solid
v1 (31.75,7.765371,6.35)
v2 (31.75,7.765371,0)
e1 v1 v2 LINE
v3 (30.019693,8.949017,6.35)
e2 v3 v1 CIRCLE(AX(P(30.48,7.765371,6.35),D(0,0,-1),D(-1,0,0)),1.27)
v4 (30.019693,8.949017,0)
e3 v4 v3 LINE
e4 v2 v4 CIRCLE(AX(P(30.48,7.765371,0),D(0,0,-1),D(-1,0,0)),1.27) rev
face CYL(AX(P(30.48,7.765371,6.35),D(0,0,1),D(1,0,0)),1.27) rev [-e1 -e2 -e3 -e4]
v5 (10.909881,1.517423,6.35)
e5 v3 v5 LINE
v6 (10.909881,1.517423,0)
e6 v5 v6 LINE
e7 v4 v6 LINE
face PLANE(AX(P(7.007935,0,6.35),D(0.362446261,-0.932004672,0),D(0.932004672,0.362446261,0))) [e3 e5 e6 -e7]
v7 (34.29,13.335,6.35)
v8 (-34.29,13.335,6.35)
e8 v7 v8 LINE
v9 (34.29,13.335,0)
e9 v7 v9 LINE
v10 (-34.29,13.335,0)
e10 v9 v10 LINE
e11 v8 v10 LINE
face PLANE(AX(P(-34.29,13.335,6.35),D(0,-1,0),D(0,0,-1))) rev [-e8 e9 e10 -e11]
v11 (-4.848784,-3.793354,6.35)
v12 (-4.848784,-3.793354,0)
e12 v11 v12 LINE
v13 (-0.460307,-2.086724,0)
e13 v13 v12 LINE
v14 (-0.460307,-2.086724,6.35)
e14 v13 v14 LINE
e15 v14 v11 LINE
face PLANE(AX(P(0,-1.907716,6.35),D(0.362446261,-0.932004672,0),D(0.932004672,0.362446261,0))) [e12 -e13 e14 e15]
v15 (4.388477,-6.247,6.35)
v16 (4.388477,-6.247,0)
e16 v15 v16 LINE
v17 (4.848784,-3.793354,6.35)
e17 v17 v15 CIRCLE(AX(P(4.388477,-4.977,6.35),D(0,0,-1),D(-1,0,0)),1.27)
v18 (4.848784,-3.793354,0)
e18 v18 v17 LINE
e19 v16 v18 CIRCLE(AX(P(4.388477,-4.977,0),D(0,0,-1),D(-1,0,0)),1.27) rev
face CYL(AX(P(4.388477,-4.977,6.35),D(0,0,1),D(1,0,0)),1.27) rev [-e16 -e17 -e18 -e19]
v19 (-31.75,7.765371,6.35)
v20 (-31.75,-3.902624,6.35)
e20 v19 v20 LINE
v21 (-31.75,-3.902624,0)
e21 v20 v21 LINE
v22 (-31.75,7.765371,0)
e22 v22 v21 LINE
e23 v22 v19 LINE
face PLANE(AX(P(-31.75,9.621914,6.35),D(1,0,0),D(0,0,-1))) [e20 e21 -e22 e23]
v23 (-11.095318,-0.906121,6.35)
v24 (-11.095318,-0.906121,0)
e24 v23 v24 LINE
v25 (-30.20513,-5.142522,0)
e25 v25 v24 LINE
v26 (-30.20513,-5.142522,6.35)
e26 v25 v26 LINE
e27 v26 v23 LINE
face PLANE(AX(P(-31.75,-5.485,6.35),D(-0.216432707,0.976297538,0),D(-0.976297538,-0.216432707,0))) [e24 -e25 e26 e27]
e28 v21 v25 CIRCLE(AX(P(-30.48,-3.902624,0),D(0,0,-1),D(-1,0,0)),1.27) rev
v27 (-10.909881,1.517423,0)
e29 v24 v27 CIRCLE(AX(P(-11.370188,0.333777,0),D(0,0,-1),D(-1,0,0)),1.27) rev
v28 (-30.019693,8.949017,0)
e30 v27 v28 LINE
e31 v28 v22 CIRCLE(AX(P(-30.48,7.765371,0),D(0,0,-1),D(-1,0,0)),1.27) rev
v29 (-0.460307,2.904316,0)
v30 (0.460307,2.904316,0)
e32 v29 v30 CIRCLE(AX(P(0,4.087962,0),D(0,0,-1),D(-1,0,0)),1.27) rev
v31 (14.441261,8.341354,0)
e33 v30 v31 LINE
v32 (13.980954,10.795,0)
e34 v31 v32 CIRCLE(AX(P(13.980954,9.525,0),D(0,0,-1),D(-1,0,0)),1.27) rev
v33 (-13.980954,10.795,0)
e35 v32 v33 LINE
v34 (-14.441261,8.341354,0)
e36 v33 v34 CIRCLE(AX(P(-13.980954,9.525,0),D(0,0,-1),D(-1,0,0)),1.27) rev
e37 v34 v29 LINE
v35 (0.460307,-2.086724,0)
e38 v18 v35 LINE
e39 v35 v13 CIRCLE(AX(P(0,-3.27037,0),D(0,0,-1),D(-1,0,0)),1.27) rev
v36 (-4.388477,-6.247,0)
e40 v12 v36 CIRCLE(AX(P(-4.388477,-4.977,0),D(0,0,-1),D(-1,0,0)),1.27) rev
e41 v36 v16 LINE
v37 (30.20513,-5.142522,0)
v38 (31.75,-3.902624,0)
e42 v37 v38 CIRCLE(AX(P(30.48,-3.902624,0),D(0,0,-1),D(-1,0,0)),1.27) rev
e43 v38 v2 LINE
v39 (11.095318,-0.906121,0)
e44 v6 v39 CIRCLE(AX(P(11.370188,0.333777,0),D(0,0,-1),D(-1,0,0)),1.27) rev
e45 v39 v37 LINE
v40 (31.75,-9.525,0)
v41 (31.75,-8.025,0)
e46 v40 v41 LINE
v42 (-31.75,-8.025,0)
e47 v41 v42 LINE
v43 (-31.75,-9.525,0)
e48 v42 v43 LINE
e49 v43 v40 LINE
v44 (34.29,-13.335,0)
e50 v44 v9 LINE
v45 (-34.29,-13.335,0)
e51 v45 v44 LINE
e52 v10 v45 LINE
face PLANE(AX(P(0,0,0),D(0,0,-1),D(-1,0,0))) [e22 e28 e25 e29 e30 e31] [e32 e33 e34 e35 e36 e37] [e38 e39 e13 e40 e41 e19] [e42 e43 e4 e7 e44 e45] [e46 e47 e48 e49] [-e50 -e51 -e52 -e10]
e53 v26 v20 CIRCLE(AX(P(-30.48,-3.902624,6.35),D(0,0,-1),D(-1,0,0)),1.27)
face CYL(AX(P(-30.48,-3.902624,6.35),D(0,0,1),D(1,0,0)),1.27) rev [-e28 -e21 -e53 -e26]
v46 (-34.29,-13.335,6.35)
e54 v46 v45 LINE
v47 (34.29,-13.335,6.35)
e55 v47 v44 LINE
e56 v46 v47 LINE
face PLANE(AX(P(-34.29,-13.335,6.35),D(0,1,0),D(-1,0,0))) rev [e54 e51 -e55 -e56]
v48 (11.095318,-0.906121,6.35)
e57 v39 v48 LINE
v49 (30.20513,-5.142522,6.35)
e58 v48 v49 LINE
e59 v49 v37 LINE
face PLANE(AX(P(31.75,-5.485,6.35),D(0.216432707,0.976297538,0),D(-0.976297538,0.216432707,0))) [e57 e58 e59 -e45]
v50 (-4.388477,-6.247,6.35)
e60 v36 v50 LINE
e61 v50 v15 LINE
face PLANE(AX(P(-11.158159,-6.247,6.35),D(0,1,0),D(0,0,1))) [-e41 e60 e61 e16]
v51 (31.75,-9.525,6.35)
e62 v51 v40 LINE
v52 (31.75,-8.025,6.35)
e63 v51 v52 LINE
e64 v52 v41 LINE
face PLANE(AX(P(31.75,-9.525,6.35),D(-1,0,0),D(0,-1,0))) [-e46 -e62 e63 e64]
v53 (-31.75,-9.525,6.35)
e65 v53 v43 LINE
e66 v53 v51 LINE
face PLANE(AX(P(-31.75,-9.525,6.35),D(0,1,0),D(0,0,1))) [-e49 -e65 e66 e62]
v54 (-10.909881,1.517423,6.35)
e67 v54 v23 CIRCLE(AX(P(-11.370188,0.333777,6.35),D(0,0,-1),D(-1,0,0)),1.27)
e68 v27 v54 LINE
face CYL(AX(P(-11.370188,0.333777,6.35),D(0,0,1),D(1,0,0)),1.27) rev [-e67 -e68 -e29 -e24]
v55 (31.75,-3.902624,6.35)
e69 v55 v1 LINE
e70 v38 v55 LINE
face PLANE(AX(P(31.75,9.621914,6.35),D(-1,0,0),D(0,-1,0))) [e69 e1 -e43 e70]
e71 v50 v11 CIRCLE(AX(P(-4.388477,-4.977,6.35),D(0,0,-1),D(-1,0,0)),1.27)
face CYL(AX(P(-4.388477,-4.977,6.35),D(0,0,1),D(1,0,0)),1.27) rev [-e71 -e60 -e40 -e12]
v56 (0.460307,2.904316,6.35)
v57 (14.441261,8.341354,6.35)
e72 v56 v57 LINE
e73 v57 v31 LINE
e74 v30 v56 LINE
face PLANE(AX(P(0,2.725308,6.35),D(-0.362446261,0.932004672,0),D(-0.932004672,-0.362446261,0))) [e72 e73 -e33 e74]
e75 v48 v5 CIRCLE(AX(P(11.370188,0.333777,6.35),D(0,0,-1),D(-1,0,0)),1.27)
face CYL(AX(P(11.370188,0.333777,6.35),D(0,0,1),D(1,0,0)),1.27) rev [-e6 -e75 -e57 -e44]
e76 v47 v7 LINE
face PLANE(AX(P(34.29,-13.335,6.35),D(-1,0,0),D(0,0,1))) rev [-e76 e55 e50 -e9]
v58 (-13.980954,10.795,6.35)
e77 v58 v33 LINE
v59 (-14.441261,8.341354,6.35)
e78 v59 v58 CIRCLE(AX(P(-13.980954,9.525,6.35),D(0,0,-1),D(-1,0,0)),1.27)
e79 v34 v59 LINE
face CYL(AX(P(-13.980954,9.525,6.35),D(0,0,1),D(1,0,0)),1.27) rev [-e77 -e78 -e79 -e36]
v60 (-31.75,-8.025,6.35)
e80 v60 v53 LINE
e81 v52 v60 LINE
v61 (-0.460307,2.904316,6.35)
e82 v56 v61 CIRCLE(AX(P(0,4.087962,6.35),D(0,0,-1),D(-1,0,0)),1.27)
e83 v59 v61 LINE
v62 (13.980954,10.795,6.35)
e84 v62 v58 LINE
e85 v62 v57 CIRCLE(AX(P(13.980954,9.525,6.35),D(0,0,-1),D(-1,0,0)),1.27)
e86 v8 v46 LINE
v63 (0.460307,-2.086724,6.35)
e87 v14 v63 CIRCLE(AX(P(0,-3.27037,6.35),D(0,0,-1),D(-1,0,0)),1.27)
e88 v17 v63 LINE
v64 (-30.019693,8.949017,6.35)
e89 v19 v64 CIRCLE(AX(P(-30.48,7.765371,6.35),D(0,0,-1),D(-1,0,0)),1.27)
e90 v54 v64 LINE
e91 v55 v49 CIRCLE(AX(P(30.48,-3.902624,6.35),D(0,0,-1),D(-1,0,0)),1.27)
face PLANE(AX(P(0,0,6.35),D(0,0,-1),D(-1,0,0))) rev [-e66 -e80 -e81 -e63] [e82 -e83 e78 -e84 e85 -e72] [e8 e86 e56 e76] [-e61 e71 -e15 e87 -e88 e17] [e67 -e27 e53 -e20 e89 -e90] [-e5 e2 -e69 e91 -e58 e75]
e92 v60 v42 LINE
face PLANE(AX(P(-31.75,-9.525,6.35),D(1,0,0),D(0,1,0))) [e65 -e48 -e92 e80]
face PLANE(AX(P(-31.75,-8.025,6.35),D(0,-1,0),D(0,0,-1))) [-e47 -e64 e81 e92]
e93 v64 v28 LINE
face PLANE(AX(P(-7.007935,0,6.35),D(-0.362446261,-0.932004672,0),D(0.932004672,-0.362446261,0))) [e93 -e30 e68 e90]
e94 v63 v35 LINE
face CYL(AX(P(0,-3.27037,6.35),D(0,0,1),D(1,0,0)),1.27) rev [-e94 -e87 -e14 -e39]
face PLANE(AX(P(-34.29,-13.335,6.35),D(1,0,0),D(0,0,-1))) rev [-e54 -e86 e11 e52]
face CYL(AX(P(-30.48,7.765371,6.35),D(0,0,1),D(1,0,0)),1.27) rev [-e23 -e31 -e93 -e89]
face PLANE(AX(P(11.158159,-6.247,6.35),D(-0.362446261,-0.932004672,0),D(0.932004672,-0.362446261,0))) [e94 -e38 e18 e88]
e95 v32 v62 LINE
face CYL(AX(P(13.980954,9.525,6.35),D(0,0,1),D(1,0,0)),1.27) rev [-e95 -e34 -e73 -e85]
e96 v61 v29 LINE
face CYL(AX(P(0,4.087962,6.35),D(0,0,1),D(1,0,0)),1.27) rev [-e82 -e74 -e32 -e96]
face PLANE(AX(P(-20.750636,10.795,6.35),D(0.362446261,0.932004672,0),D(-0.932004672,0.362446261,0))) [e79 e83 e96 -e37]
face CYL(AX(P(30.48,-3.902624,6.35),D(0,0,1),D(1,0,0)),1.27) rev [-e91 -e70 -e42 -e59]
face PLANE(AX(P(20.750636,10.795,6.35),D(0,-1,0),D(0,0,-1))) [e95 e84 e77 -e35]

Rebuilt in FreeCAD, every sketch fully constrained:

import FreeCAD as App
import Part
import Sketcher
from FreeCAD import Vector
Q = App.Units.Quantity


def edges_at(feature, points):
    """Names of the edges that pass closest to the given points."""
    edges = feature.Shape.Edges
    near = lambda p: min(range(len(edges)), key=lambda i: edges[i].distToShape(Part.Vertex(*p))[0])
    return sorted({f"Edge{near(p) + 1}" for p in points})

doc = App.newDocument("Part")
params = doc.addObject("Spreadsheet::Sheet", "Params")
for row, (alias, value) in enumerate([
    ("sketch1_width", "2.7 in"),
    ("sketch1_width2", "2.5 in"),
    ("sketch1_height", "1.05 in"),
    ("pad1_length", "0.25 in"),
    ("fillet_radius", "0.05 in"),
], start=1):
    params.set(f"A{row}", alias)
    params.set(f"B{row}", "=" + value)
    params.setAlias(f"B{row}", alias)

body = doc.addObject("PartDesign::Body", "Body")

sketch1 = body.newObject("Sketcher::SketchObject", "Sketch")
sketch1.AttachmentSupport = (doc.getObject("XY_Plane"), [""])
sketch1.MapMode = "FlatFace"
sketch1.addGeometry([
    Part.LineSegment(Vector(-34.3, 13.3, 0), Vector(-34.3, -13.3, 0)),
    Part.LineSegment(Vector(-34.3, -13.3, 0), Vector(34.3, -13.3, 0)),
    Part.LineSegment(Vector(34.3, -13.3, 0), Vector(34.3, 13.3, 0)),
    Part.LineSegment(Vector(34.3, 13.3, 0), Vector(-34.3, 13.3, 0)),
    Part.LineSegment(Vector(31.8, -9.5, 0), Vector(-31.8, -9.5, 0)),
    Part.LineSegment(Vector(-31.8, -9.5, 0), Vector(-31.8, -8, 0)),
    Part.LineSegment(Vector(-31.8, -8, 0), Vector(31.8, -8, 0)),
    Part.LineSegment(Vector(31.8, -8, 0), Vector(31.8, -9.5, 0)),
    Part.LineSegment(Vector(-11.2, -6.2, 0), Vector(0, -1.9, 0)),
    Part.LineSegment(Vector(0, -1.9, 0), Vector(11.2, -6.2, 0)),
    Part.LineSegment(Vector(11.2, -6.2, 0), Vector(-11.2, -6.2, 0)),
    Part.LineSegment(Vector(-31.8, -5.5, 0), Vector(-31.8, 9.6, 0)),
    Part.LineSegment(Vector(-31.8, 9.6, 0), Vector(-7, 0, 0)),
    Part.LineSegment(Vector(-7, 0, 0), Vector(-31.8, -5.5, 0)),
    Part.LineSegment(Vector(31.8, -5.5, 0), Vector(7, 0, 0)),
    Part.LineSegment(Vector(7, 0, 0), Vector(31.8, 9.6, 0)),
    Part.LineSegment(Vector(31.8, 9.6, 0), Vector(31.8, -5.5, 0)),
    Part.LineSegment(Vector(0, 2.7, 0), Vector(-20.8, 10.8, 0)),
    Part.LineSegment(Vector(-20.8, 10.8, 0), Vector(20.8, 10.8, 0)),
    Part.LineSegment(Vector(20.8, 10.8, 0), Vector(0, 2.7, 0)),
], False)
sketch1.addConstraint([
    Sketcher.Constraint("Coincident", 0, 2, 1, 1),
    Sketcher.Constraint("Coincident", 1, 2, 2, 1),
    Sketcher.Constraint("Coincident", 2, 2, 3, 1),
    Sketcher.Constraint("Coincident", 3, 2, 0, 1),
    Sketcher.Constraint("Coincident", 4, 2, 5, 1),
    Sketcher.Constraint("Coincident", 5, 2, 6, 1),
    Sketcher.Constraint("Coincident", 6, 2, 7, 1),
    Sketcher.Constraint("Coincident", 7, 2, 4, 1),
    Sketcher.Constraint("Coincident", 8, 2, 9, 1),
    Sketcher.Constraint("Coincident", 9, 2, 10, 1),
    Sketcher.Constraint("Coincident", 10, 2, 8, 1),
    Sketcher.Constraint("Coincident", 11, 2, 12, 1),
    Sketcher.Constraint("Coincident", 12, 2, 13, 1),
    Sketcher.Constraint("Coincident", 13, 2, 11, 1),
    Sketcher.Constraint("Coincident", 14, 2, 15, 1),
    Sketcher.Constraint("Coincident", 15, 2, 16, 1),
    Sketcher.Constraint("Coincident", 16, 2, 14, 1),
    Sketcher.Constraint("Coincident", 17, 2, 18, 1),
    Sketcher.Constraint("Coincident", 18, 2, 19, 1),
    Sketcher.Constraint("Coincident", 19, 2, 17, 1),
    Sketcher.Constraint("Vertical", 0),
    Sketcher.Constraint("Horizontal", 1),
    Sketcher.Constraint("Vertical", 2),
    Sketcher.Constraint("Horizontal", 3),
    Sketcher.Constraint("Horizontal", 4),
    Sketcher.Constraint("Vertical", 5),
    Sketcher.Constraint("Horizontal", 6),
    Sketcher.Constraint("Vertical", 7),
    Sketcher.Constraint("Horizontal", 10),
    Sketcher.Constraint("Vertical", 11),
    Sketcher.Constraint("Vertical", 16),
    Sketcher.Constraint("Horizontal", 18),
    Sketcher.Constraint("Symmetric", 0, 2, 2, 2, -1, 1),
    Sketcher.Constraint("Symmetric", 12, 2, 14, 2, -1, 1),
    Sketcher.Constraint("Symmetric", 11, 2, 15, 2, -2),
    Sketcher.Constraint("PointOnObject", 8, 2, -2),
    Sketcher.Constraint("PointOnObject", 12, 2, -1),
    Sketcher.Constraint("PointOnObject", 19, 2, -2),
    Sketcher.Constraint("Parallel", 9, 12),
    Sketcher.Constraint("Parallel", 8, 15),
    Sketcher.Constraint("Parallel", 12, 17),
    Sketcher.Constraint("Parallel", 15, 19),
    Sketcher.Constraint("Horizontal", 13, 2, 16, 2),
    Sketcher.Constraint("Vertical", 5, 2, 11, 2),
    Sketcher.Constraint("Vertical", 7, 2, 15, 2),
    Sketcher.Constraint("DistanceX", 1, 1, 1, 2, Q("2.7 in")),
    Sketcher.Constraint("DistanceX", 4, 2, 4, 1, Q("2.5 in")),
    Sketcher.Constraint("DistanceY", 0, 2, 0, 1, Q("1.05 in")),
    Sketcher.Constraint("DistanceY", 4, 2, 3, 2, Q("0.9 in")),
    Sketcher.Constraint("DistanceY", 5, 2, 13, 2, Q("0.1 in")),
    Sketcher.Constraint("DistanceY", 17, 2, 3, 2, Q("0.1 in")),
    Sketcher.Constraint("DistanceY", 6, 2, 9, 2, Q("0.07 in")),
    Sketcher.Constraint("DistanceY", 5, 1, 5, 2, Q("1.5 mm")),
    Sketcher.Constraint("DistanceX", 10, 2, 10, 1, Q("22.316319 mm")),
    Sketcher.Constraint("DistanceX", 18, 1, 18, 2, Q("41.501272 mm")),
    Sketcher.Constraint("DistanceX", 17, 2, 12, 2, Q("13.742701 mm")),
    Sketcher.Constraint("Distance", 17, Q("22.264519 mm")),
])
sketch1.setExpression("Constraints[45]", "Params.sketch1_width")
sketch1.setExpression("Constraints[46]", "Params.sketch1_width2")
sketch1.setExpression("Constraints[47]", "Params.sketch1_height")
pad1 = body.newObject("PartDesign::Pad", "Pad")
pad1.Profile = sketch1
pad1.setExpression("Length", "Params.pad1_length")
doc.recompute()

fillet = body.newObject("PartDesign::Fillet", "Fillet")
fillet.Base = (pad1, edges_at(pad1, [
    (20.751, 10.795, 3.175),
    (-20.751, 10.795, 3.175),
    (0, 2.725, 3.175),
    (-7.008, 0, 3.175),
    (-31.75, 9.622, 3.175),
    (-31.75, -5.485, 3.175),
    (7.008, 0, 3.175),
    (31.75, -5.485, 3.175),
    (31.75, 9.622, 3.175),
    (11.158, -6.247, 3.175),
    (0, -1.908, 3.175),
    (-11.158, -6.247, 3.175),
]))
fillet.setExpression("Radius", "Params.fillet_radius")

doc.recompute()
